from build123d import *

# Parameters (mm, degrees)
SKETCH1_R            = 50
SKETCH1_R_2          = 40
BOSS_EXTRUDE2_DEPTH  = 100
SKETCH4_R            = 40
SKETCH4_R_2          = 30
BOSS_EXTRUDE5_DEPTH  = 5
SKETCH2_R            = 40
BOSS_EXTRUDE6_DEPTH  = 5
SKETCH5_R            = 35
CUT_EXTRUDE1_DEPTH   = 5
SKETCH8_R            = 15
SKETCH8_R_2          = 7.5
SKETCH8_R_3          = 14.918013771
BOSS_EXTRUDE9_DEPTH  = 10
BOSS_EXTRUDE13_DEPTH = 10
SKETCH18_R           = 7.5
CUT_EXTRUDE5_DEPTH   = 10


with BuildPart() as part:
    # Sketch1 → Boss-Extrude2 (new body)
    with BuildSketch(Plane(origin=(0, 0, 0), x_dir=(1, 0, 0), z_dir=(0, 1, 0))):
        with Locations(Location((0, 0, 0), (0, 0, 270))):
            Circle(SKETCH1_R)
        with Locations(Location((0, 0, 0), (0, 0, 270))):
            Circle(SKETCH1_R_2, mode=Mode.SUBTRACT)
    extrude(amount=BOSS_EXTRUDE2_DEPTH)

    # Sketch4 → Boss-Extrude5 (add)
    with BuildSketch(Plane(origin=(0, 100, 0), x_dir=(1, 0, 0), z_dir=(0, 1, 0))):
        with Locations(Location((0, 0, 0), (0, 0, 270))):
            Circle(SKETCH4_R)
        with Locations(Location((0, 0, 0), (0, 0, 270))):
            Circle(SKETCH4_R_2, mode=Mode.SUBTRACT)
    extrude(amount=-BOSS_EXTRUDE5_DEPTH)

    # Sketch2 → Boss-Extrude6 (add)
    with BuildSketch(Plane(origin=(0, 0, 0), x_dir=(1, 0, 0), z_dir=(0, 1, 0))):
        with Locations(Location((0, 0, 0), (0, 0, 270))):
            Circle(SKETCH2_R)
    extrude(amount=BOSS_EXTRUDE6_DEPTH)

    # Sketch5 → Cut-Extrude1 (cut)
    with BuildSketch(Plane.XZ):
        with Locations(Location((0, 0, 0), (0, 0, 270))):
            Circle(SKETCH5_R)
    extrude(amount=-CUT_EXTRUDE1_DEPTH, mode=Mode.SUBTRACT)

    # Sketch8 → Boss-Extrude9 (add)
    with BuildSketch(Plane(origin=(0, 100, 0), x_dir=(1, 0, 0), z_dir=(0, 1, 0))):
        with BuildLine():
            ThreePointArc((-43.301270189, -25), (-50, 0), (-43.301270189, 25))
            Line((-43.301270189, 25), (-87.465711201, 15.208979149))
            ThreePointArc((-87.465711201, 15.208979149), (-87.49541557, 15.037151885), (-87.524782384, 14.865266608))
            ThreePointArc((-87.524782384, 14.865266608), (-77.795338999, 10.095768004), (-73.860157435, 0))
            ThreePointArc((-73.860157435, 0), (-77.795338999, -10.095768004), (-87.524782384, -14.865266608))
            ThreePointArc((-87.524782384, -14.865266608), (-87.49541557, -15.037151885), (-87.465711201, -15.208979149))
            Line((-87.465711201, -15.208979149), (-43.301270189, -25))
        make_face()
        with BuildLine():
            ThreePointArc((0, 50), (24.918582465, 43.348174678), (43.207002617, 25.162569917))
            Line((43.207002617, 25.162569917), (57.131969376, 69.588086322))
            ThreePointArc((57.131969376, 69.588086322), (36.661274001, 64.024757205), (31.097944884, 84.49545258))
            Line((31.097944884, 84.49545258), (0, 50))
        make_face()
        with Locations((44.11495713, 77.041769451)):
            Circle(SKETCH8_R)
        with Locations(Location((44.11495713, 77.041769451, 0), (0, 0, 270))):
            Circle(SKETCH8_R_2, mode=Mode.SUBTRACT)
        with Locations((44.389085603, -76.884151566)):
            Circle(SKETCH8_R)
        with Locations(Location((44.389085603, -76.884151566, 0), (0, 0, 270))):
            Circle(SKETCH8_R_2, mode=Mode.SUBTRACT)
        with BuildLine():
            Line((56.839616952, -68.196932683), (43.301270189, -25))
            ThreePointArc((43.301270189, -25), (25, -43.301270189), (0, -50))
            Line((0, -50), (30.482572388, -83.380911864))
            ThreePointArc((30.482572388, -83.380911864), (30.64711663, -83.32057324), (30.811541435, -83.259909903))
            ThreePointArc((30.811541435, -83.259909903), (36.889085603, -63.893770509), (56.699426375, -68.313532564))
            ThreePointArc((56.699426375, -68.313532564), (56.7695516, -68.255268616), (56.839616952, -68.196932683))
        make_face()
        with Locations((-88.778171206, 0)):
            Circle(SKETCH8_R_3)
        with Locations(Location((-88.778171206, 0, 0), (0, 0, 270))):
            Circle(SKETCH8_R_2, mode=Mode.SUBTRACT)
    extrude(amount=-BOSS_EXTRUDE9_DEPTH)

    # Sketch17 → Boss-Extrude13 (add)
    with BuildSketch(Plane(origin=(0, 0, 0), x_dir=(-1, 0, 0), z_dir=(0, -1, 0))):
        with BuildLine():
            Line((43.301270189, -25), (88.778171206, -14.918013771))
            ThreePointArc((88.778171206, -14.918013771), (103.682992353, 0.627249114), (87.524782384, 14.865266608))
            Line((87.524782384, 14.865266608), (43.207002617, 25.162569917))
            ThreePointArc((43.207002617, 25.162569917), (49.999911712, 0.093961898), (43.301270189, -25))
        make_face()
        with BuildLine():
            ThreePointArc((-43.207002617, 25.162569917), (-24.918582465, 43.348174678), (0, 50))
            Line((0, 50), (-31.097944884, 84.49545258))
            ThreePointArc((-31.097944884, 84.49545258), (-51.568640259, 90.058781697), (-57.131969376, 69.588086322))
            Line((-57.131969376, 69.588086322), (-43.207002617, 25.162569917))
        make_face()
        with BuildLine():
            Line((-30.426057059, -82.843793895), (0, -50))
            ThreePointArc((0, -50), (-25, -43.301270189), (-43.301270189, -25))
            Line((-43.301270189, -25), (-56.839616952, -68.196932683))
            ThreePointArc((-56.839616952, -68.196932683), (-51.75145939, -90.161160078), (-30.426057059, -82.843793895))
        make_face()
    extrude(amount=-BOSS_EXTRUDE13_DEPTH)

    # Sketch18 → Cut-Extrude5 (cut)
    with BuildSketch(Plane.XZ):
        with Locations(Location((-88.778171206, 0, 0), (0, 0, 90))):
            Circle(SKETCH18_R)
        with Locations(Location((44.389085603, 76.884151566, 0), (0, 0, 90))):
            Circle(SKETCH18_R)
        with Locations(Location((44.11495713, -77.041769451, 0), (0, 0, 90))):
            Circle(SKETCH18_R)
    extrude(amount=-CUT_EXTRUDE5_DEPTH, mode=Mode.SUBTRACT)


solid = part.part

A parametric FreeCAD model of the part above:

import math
import FreeCAD as App
import Part
import Sketcher

V = App.Vector
Q = App.Units.Quantity

doc = App.newDocument("Part")
body = doc.addObject("PartDesign::Body", "Body")

sketch1 = body.newObject("Sketcher::SketchObject", "Sketch")
sketch1.AttachmentSupport = (doc.getObject("XZ_Plane"), [""])
sketch1.MapMode = "FlatFace"
sketch1.addGeometry(Part.Circle(V(0, 0, 0), V(0, 0, 1), 50), False)
sketch1.addGeometry(Part.Circle(V(0, 0, 0), V(0, 0, 1), 40), False)
sketch1.addConstraint(Sketcher.Constraint("Coincident", 0, 3, -1, 1))
sketch1.addConstraint(Sketcher.Constraint("Coincident", 1, 3, -1, 1))
sketch1.addConstraint(Sketcher.Constraint("Diameter", 0, 100.0))
sketch1.addConstraint(Sketcher.Constraint("Diameter", 1, 80.0))
pad1 = body.newObject("PartDesign::Pad", "Pad")
pad1.Profile = sketch1
pad1.Length = 100
pad1.Reversed = True

sketch2 = body.newObject("Sketcher::SketchObject", "Sketch001")
sketch2.AttachmentSupport = (doc.getObject("XZ_Plane"), [""])
sketch2.MapMode = "FlatFace"
sketch2.AttachmentOffset = App.Placement(V(0, 0, -100), App.Rotation())
sketch2.addGeometry(Part.Circle(V(0, 0, 0), V(0, 0, 1), 40), False)
sketch2.addGeometry(Part.Circle(V(0, 0, 0), V(0, 0, 1), 30), False)
sketch2.addConstraint(Sketcher.Constraint("Coincident", 0, 3, -1, 1))
sketch2.addConstraint(Sketcher.Constraint("Coincident", 1, 3, -1, 1))
sketch2.addConstraint(Sketcher.Constraint("Diameter", 0, 80.0))
sketch2.addConstraint(Sketcher.Constraint("Diameter", 1, 60.0))
pad2 = body.newObject("PartDesign::Pad", "Pad001")
pad2.Profile = sketch2
pad2.Length = 5

sketch3 = body.newObject("Sketcher::SketchObject", "Sketch002")
sketch3.AttachmentSupport = (doc.getObject("XZ_Plane"), [""])
sketch3.MapMode = "FlatFace"
sketch3.addGeometry(Part.Circle(V(0, 0, 0), V(0, 0, 1), 40), False)
sketch3.addConstraint(Sketcher.Constraint("Coincident", 0, 3, -1, 1))
sketch3.addConstraint(Sketcher.Constraint("Diameter", 0, 80.0))
pad3 = body.newObject("PartDesign::Pad", "Pad002")
pad3.Profile = sketch3
pad3.Length = 5
pad3.Reversed = True

sketch4 = body.newObject("Sketcher::SketchObject", "Sketch003")
sketch4.AttachmentSupport = (doc.getObject("XZ_Plane"), [""])
sketch4.MapMode = "FlatFace"
sketch4.addGeometry(Part.Circle(V(0, 0, 0), V(0, 0, 1), 35), False)
sketch4.addConstraint(Sketcher.Constraint("Coincident", 0, 3, -1, 1))
sketch4.addConstraint(Sketcher.Constraint("Diameter", 0, 70.0))
pocket1 = body.newObject("PartDesign::Pocket", "Pocket")
pocket1.Profile = sketch4
pocket1.Length = 5

sketch5 = body.newObject("Sketcher::SketchObject", "Sketch004")
sketch5.AttachmentSupport = (doc.getObject("XZ_Plane"), [""])
sketch5.MapMode = "FlatFace"
sketch5.AttachmentOffset = App.Placement(V(0, 0, -100), App.Rotation())
sketch5.addGeometry(Part.ArcOfCircle(Part.Circle(V(0, 0, 0), V(0, 0, 1), 50), math.radians(150), math.radians(210)), False)
sketch5.addGeometry(Part.LineSegment(V(-43.30127, -25, 0), V(-87.465711, -15.208979, 0)), False)
sketch5.addGeometry(Part.ArcOfCircle(Part.Circle(V(0.000267, 0.000046, 0), V(0, 0, 1), 88.778442), math.radians(-170.360828), math.radians(-170.13575)), False)
sketch5.addGeometry(Part.ArcOfCircle(Part.Circle(V(-88.778171, 0, 0), V(0, 0, 1), 14.918014), math.radians(85.180414), math.radians(274.819586)), False)
sketch5.addGeometry(Part.ArcOfCircle(Part.Circle(V(0.000267, -0.000046, 0), V(0, 0, 1), 88.778442), math.radians(170.13575), math.radians(170.360828)), False)
sketch5.addGeometry(Part.LineSegment(V(-87.465711, 15.208979, 0), V(-43.30127, 25, 0)), False)
sketch5.addGeometry(Part.Circle(V(-88.778171, 0, 0), V(0, 0, 1), 7.5), False)
sketch5.addGeometry(Part.ArcOfCircle(Part.Circle(V(0, 0, 0), V(0, 0, 1), 50), math.radians(-90), math.radians(-30.215345)), False)
sketch5.addGeometry(Part.LineSegment(V(43.207003, -25.16257, 0), V(57.131969, -69.588086, 0)), False)
sketch5.addGeometry(Part.ArcOfCircle(Part.Circle(V(44.114957, -77.041769, 0), V(0, 0, 1), 15), math.radians(-150.204077), math.radians(29.795923)), False)
sketch5.addGeometry(Part.LineSegment(V(31.097945, -84.495453, 0), V(0, -50, 0)), False)
sketch5.addGeometry(Part.Circle(V(44.114957, -77.041769, 0), V(0, 0, 1), 7.5), False)
sketch5.addGeometry(Part.ArcOfCircle(Part.Circle(V(0.000575, 0.000691, 0), V(0, 0, 1), 88.777272), math.radians(50.190046), math.radians(50.307728)), False)
sketch5.addGeometry(Part.LineSegment(V(56.839617, 68.196933, 0), V(43.30127, 25, 0)), False)
sketch5.addGeometry(Part.ArcOfCircle(Part.Circle(V(0, 0, 0), V(0, 0, 1), 50), math.radians(30), math.radians(90)), False)
sketch5.addGeometry(Part.LineSegment(V(0, 50, 0), V(30.482572, 83.380912, 0)), False)
sketch5.addGeometry(Part.ArcOfCircle(Part.Circle(V(0.000116, 0.000314, 0), V(0, 0, 1), 88.777836), math.radians(69.692273), math.radians(69.918491)), False)
sketch5.addGeometry(Part.ArcOfCircle(Part.Circle(V(44.389086, 76.884152, 0), V(0, 0, 1), 15), math.radians(-34.846137), math.radians(154.846137)), False)
sketch5.addGeometry(Part.Circle(V(44.389086, 76.884152, 0), V(0, 0, 1), 7.5), False)
sketch5.addConstraint(Sketcher.Constraint("Coincident", 0, 2, 1, 1))
sketch5.addConstraint(Sketcher.Constraint("Coincident", 1, 2, 2, 2))
sketch5.addConstraint(Sketcher.Constraint("Coincident", 2, 1, 3, 2))
sketch5.addConstraint(Sketcher.Constraint("Coincident", 3, 1, 4, 2))
sketch5.addConstraint(Sketcher.Constraint("Coincident", 4, 1, 5, 1))
sketch5.addConstraint(Sketcher.Constraint("Coincident", 5, 2, 0, 1))
sketch5.addConstraint(Sketcher.Constraint("Coincident", 7, 2, 8, 1))
sketch5.addConstraint(Sketcher.Constraint("Coincident", 8, 2, 9, 2))
sketch5.addConstraint(Sketcher.Constraint("Coincident", 9, 1, 10, 1))
sketch5.addConstraint(Sketcher.Constraint("Coincident", 10, 2, 7, 1))
sketch5.addConstraint(Sketcher.Constraint("Coincident", 12, 1, 13, 1))
sketch5.addConstraint(Sketcher.Constraint("Coincident", 13, 2, 14, 1))
sketch5.addConstraint(Sketcher.Constraint("Coincident", 14, 2, 15, 1))
sketch5.addConstraint(Sketcher.Constraint("Coincident", 15, 2, 16, 2))
sketch5.addConstraint(Sketcher.Constraint("Coincident", 16, 1, 17, 2))
sketch5.addConstraint(Sketcher.Constraint("Coincident", 17, 1, 12, 2))
sketch5.addConstraint(Sketcher.Constraint("Coincident", 0, 3, -1, 1))
sketch5.addConstraint(Sketcher.Constraint("Coincident", 7, 3, -1, 1))
sketch5.addConstraint(Sketcher.Constraint("Coincident", 14, 3, -1, 1))
sketch5.addConstraint(Sketcher.Constraint("Coincident", 6, 3, 3, 3))
sketch5.addConstraint(Sketcher.Constraint("Coincident", 11, 3, 9, 3))
sketch5.addConstraint(Sketcher.Constraint("Coincident", 18, 3, 17, 3))
sketch5.addConstraint(Sketcher.Constraint("Equal", 2, 4))
sketch5.addConstraint(Sketcher.Constraint("Equal", 0, 7))
sketch5.addConstraint(Sketcher.Constraint("Equal", 6, 11))
sketch5.addConstraint(Sketcher.Constraint("Equal", 7, 14))
sketch5.addConstraint(Sketcher.Constraint("Equal", 9, 17))
sketch5.addConstraint(Sketcher.Constraint("Equal", 11, 18))
sketch5.addConstraint(Sketcher.Constraint("Symmetric", 2, 3, 4, 3, -1))
sketch5.addConstraint(Sketcher.Constraint("PointOnObject", 3, 3, -1))
sketch5.addConstraint(Sketcher.Constraint("PointOnObject", 10, 2, -2))
sketch5.addConstraint(Sketcher.Constraint("PointOnObject", 14, 2, -2))
sketch5.addConstraint(Sketcher.Constraint("Horizontal", 5, 2, 13, 2))
sketch5.addConstraint(Sketcher.Constraint("Vertical", 1, 2, 4, 1))
sketch5.addConstraint(Sketcher.Constraint("Vertical", 0, 2, 5, 2))
sketch5.addConstraint(Sketcher.Constraint("Diameter", 6, 15.0))
sketch5.addConstraint(Sketcher.Constraint("Radius", 0, 50.0))
sketch5.addConstraint(Sketcher.Constraint("Radius", 9, 15.0))
sketch5.addConstraint(Sketcher.Constraint("DistanceY", 0, 2, -1, 1, 25.0))
sketch5.addConstraint(Sketcher.Constraint("Angle", 1, Q("167.5 deg")))
sketch5.addConstraint(Sketcher.Constraint("Radius", 2, 88.778442))
sketch5.addConstraint(Sketcher.Constraint("Radius", 3, 14.918014))
sketch5.addConstraint(Sketcher.Constraint("Radius", 12, 88.777272))
sketch5.addConstraint(Sketcher.Constraint("Radius", 16, 88.777836))
sketch5.addConstraint(Sketcher.Constraint("DistanceY", 16, 1, 15, 2, 0.121002))
sketch5.addConstraint(Sketcher.Constraint("DistanceX", 16, 3, 12, 1, 56.839501))
sketch5.addConstraint(Sketcher.Constraint("DistanceY", 12, 1, 17, 1, 0.1166))
sketch5.addConstraint(Sketcher.Constraint("DistanceX", 3, 3, -1, 1, 88.778171))
sketch5.addConstraint(Sketcher.Constraint("DistanceY", 9, 3, -1, 1, 77.041769))
sketch5.addConstraint(Sketcher.Constraint("DistanceY", -1, 1, 12, 3, 0.000691))
sketch5.addConstraint(Sketcher.Constraint("DistanceY", -1, 1, 17, 3, 76.884152))
sketch5.addConstraint(Sketcher.Constraint("DistanceX", 1, 2, -1, 1, 87.465711))
sketch5.addConstraint(Sketcher.Constraint("DistanceY", 7, 2, -1, 1, 25.16257))
sketch5.addConstraint(Sketcher.Constraint("DistanceX", -1, 1, 8, 2, 57.131969))
sketch5.addConstraint(Sketcher.Constraint("DistanceY", -1, 1, 15, 2, 83.380912))
sketch5.addConstraint(Sketcher.Constraint("DistanceX", -1, 1, 16, 1, 30.811541))
sketch5.addConstraint(Sketcher.Constraint("DistanceX", 3, 3, 2, 3, 88.778439))
sketch5.addConstraint(Sketcher.Constraint("DistanceX", 4, 3, 9, 3, 44.11469))
sketch5.addConstraint(Sketcher.Constraint("DistanceX", 16, 3, 2, 3, 0.000152))
sketch5.addConstraint(Sketcher.Constraint("Distance", 10, 46.443712))
pad4 = body.newObject("PartDesign::Pad", "Pad003")
pad4.Profile = sketch5
pad4.Length = 10

sketch6 = body.newObject("Sketcher::SketchObject", "Sketch005")
sketch6.AttachmentSupport = (doc.getObject("XZ_Plane"), [""])
sketch6.MapMode = "FlatFace"
sketch6.addGeometry(Part.LineSegment(V(-43, 25, 0), V(-89, 15, 0)), False)
sketch6.addGeometry(Part.ArcOfCircle(Part.Circle(V(-89, 0, 0), V(0, 0, 1), 15), math.radians(90), math.radians(275)), False)
sketch6.addGeometry(Part.LineSegment(V(-88, -15, 0), V(-43, -25, 0)), False)
sketch6.addGeometry(Part.ArcOfCircle(Part.Circle(V(0, 0, 0), V(0, 0, 1), 50), math.radians(150), math.radians(210)), False)
sketch6.addGeometry(Part.ArcOfCircle(Part.Circle(V(0, 0, 0), V(0, 0, 1), 50), math.radians(-90), math.radians(-30)), False)
sketch6.addGeometry(Part.LineSegment(V(0, -50, 0), V(31, -84, 0)), False)
sketch6.addGeometry(Part.ArcOfCircle(Part.Circle(V(44, -77, 0), V(0, 0, 1), 15), math.radians(-150), math.radians(30)), False)
sketch6.addGeometry(Part.LineSegment(V(57, -70, 0), V(43, -25, 0)), False)
sketch6.addGeometry(Part.LineSegment(V(30, 83, 0), V(0, 50, 0)), False)
sketch6.addGeometry(Part.ArcOfCircle(Part.Circle(V(0, 0, 0), V(0, 0, 1), 50), math.radians(30), math.radians(90)), False)
sketch6.addGeometry(Part.LineSegment(V(43, 25, 0), V(57, 68, 0)), False)
sketch6.addGeometry(Part.ArcOfCircle(Part.Circle(V(44, 77, 0), V(0, 0, 1), 15), math.radians(-35), math.radians(157)), False)
sketch6.addConstraint(Sketcher.Constraint("Coincident", 0, 2, 1, 1))
sketch6.addConstraint(Sketcher.Constraint("Coincident", 1, 2, 2, 1))
sketch6.addConstraint(Sketcher.Constraint("Coincident", 2, 2, 3, 2))
sketch6.addConstraint(Sketcher.Constraint("Coincident", 3, 1, 0, 1))
sketch6.addConstraint(Sketcher.Constraint("Coincident", 4, 1, 5, 1))
sketch6.addConstraint(Sketcher.Constraint("Coincident", 5, 2, 6, 1))
sketch6.addConstraint(Sketcher.Constraint("Coincident", 6, 2, 7, 1))
sketch6.addConstraint(Sketcher.Constraint("Coincident", 7, 2, 4, 2))
sketch6.addConstraint(Sketcher.Constraint("Coincident", 8, 2, 9, 2))
sketch6.addConstraint(Sketcher.Constraint("Coincident", 9, 1, 10, 1))
sketch6.addConstraint(Sketcher.Constraint("Coincident", 10, 2, 11, 1))
sketch6.addConstraint(Sketcher.Constraint("Coincident", 11, 2, 8, 1))
sketch6.addConstraint(Sketcher.Constraint("Coincident", 3, 3, -1, 1))
sketch6.addConstraint(Sketcher.Constraint("Coincident", 4, 3, -1, 1))
sketch6.addConstraint(Sketcher.Constraint("Coincident", 9, 3, -1, 1))
sketch6.addConstraint(Sketcher.Constraint("Equal", 3, 4))
sketch6.addConstraint(Sketcher.Constraint("Equal", 4, 9))
sketch6.addConstraint(Sketcher.Constraint("PointOnObject", 1, 3, -1))
sketch6.addConstraint(Sketcher.Constraint("PointOnObject", 4, 1, -2))
sketch6.addConstraint(Sketcher.Constraint("PointOnObject", 8, 2, -2))
sketch6.addConstraint(Sketcher.Constraint("Horizontal", 2, 2, 7, 2))
sketch6.addConstraint(Sketcher.Constraint("Horizontal", 3, 1, 9, 1))
sketch6.addConstraint(Sketcher.Constraint("Vertical", 1, 3, 0, 2))
sketch6.addConstraint(Sketcher.Constraint("Radius", 3, 50.0))
sketch6.addConstraint(Sketcher.Constraint("Radius", 6, 15.0))
sketch6.addConstraint(Sketcher.Constraint("DistanceY", -1, 1, 3, 1, 25.0))
sketch6.addConstraint(Sketcher.Constraint("Angle", 0, Q("-167.5 deg")))
sketch6.addConstraint(Sketcher.Constraint("Radius", 1, 14.918014))
sketch6.addConstraint(Sketcher.Constraint("Radius", 11, 15.181683))
sketch6.addConstraint(Sketcher.Constraint("DistanceY", 6, 3, -1, 1, 77.041769))
sketch6.addConstraint(Sketcher.Constraint("DistanceY", -1, 1, 11, 3, 76.884152))
sketch6.addConstraint(Sketcher.Constraint("DistanceY", 2, 2, -1, 1, 25.16257))
sketch6.addConstraint(Sketcher.Constraint("DistanceX", -1, 1, 6, 2, 57.131969))
sketch6.addConstraint(Sketcher.Constraint("DistanceX", 1, 3, 6, 3, 132.893128))
sketch6.addConstraint(Sketcher.Constraint("DistanceX", 6, 3, 11, 3, 0.274128))
sketch6.addConstraint(Sketcher.Constraint("DistanceX", 1, 3, 1, 2, 1.253389))
sketch6.addConstraint(Sketcher.Constraint("DistanceX", 11, 3, 10, 2, 12.450531))
sketch6.addConstraint(Sketcher.Constraint("DistanceX", 11, 2, 11, 3, 13.963029))
sketch6.addConstraint(Sketcher.Constraint("Distance", 5, 46.443712))
pad5 = body.newObject("PartDesign::Pad", "Pad004")
pad5.Profile = sketch6
pad5.Length = 10
pad5.Reversed = True

sketch7 = body.newObject("Sketcher::SketchObject", "Sketch006")
sketch7.AttachmentSupport = (doc.getObject("XZ_Plane"), [""])
sketch7.MapMode = "FlatFace"
sketch7.addGeometry(Part.Circle(V(-89, 0, 0), V(0, 0, 1), 8), False)
sketch7.addGeometry(Part.Circle(V(44, 77, 0), V(0, 0, 1), 8), False)
sketch7.addGeometry(Part.Circle(V(44, -77, 0), V(0, 0, 1), 8), False)
sketch7.addConstraint(Sketcher.Constraint("Equal", 0, 1))
sketch7.addConstraint(Sketcher.Constraint("Equal", 1, 2))
sketch7.addConstraint(Sketcher.Constraint("PointOnObject", 0, 3, -1))
sketch7.addConstraint(Sketcher.Constraint("Diameter", 0, 15.0))
sketch7.addConstraint(Sketcher.Constraint("DistanceX", 0, 3, -1, 1, 88.778171))
sketch7.addConstraint(Sketcher.Constraint("DistanceY", -1, 1, 1, 3, 76.884152))
sketch7.addConstraint(Sketcher.Constraint("DistanceY", 2, 3, -1, 1, 77.041769))
sketch7.addConstraint(Sketcher.Constraint("DistanceX", 0, 3, 2, 3, 132.893128))
sketch7.addConstraint(Sketcher.Constraint("DistanceX", 2, 3, 1, 3, 0.274128))
pocket2 = body.newObject("PartDesign::Pocket", "Pocket001")
pocket2.Profile = sketch7
pocket2.Length = 10

doc.recompute()
